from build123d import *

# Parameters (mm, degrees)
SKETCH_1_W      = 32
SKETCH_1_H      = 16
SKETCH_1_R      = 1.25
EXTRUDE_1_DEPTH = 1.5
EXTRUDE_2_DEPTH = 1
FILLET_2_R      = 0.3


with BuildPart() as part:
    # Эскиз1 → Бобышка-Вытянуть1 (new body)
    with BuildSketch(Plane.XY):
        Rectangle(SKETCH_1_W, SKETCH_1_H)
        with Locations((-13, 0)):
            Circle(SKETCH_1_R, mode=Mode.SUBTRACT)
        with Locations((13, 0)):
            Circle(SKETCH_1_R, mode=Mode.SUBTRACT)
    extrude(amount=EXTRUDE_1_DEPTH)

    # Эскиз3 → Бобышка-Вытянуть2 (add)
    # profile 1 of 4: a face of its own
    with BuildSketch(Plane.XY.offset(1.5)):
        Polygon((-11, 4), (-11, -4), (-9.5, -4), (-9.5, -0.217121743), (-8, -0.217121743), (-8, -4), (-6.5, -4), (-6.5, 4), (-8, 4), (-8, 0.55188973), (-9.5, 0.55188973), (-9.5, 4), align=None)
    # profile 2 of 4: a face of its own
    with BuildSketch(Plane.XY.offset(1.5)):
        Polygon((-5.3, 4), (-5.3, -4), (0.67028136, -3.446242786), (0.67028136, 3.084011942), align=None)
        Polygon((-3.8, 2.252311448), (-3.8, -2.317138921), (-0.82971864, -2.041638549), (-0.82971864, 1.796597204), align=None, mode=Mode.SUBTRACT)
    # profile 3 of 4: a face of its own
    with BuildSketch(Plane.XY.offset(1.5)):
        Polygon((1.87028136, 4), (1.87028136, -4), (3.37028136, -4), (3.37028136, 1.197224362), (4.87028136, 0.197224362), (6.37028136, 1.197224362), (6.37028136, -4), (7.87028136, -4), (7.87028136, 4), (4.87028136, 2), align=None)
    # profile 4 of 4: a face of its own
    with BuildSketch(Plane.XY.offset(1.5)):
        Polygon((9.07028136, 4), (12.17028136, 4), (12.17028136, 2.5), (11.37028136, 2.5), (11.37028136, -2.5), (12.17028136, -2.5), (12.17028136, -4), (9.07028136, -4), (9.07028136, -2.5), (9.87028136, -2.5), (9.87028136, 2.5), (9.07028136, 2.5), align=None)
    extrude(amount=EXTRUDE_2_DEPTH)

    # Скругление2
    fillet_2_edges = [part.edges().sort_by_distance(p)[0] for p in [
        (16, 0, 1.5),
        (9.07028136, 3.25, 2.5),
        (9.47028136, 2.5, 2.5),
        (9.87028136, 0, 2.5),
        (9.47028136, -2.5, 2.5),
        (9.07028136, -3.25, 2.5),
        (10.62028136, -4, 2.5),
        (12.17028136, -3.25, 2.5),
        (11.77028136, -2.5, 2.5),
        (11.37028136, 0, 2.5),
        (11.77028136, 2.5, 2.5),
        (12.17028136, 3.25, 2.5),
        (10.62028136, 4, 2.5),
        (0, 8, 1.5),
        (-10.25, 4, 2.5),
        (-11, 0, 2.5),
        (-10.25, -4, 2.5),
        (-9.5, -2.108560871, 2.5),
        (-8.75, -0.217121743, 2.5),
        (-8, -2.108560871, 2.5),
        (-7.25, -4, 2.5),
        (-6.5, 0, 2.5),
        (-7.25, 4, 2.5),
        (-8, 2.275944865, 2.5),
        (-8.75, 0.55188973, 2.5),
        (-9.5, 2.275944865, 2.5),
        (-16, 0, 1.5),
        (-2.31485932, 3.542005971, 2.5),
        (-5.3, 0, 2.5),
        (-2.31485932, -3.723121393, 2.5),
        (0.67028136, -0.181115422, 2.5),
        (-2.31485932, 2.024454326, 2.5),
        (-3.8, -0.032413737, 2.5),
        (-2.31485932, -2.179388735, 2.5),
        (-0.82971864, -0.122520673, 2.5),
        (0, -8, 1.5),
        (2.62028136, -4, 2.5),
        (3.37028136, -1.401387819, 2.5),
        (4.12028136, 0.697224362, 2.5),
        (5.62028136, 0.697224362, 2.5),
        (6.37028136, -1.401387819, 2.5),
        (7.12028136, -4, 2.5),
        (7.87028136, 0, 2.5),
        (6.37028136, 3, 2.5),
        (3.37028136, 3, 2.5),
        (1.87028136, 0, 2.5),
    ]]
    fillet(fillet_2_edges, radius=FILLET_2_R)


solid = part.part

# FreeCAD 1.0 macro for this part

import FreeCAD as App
import Part
import Sketcher


def edges_at(feature, points):
    """Names of the edges that pass closest to the given points."""
    edges = feature.Shape.Edges
    near = lambda p: min(range(len(edges)), key=lambda i: edges[i].distToShape(Part.Vertex(*p))[0])
    return sorted({f"Edge{near(p) + 1}" for p in points})

doc = App.newDocument("Part")
body = doc.addObject("PartDesign::Body", "Body")

# Sketch on XY plane
sketch1 = body.newObject("Sketcher::SketchObject", "Sketch")
sketch1.AttachmentSupport = (doc.getObject("XY_Plane"), [""])
sketch1.MapMode = "FlatFace"
sketch1.addGeometry([
    Part.LineSegment(App.Vector(-16, 8, 0), App.Vector(-16, -8, 0)),  # 0
    Part.LineSegment(App.Vector(-16, -8, 0), App.Vector(16, -8, 0)),  # 1
    Part.LineSegment(App.Vector(16, -8, 0), App.Vector(16, 8, 0)),  # 2
    Part.LineSegment(App.Vector(16, 8, 0), App.Vector(-16, 8, 0)),  # 3
    Part.Circle(App.Vector(-13, 0, 0), App.Vector(0, 0, 1), 1.2),  # 4
    Part.Circle(App.Vector(13, 0, 0), App.Vector(0, 0, 1), 1.2),  # 5
], False)
sketch1.addConstraint([
    Sketcher.Constraint("Coincident", 0, 2, 1, 1),
    Sketcher.Constraint("Coincident", 1, 2, 2, 1),
    Sketcher.Constraint("Coincident", 2, 2, 3, 1),
    Sketcher.Constraint("Coincident", 3, 2, 0, 1),
    Sketcher.Constraint("Vertical", 0),
    Sketcher.Constraint("Horizontal", 1),
    Sketcher.Constraint("Vertical", 2),
    Sketcher.Constraint("Horizontal", 3),
    Sketcher.Constraint("Equal", 4, 5),
    Sketcher.Constraint("Symmetric", 4, 3, 5, 3, -1, 1),
    Sketcher.Constraint("Symmetric", 0, 2, 2, 2, -1, 1),
    Sketcher.Constraint("PointOnObject", 4, 3, -1),
    Sketcher.Constraint("Diameter", 4, 2.5),
    Sketcher.Constraint("DistanceX", 1, 1, 1, 2, 32.0),
    Sketcher.Constraint("DistanceY", 0, 2, 0, 1, 16.0),
    Sketcher.Constraint("DistanceX", 4, 3, -1, 1, 13.0),
])
pad1 = body.newObject("PartDesign::Pad", "Pad")
pad1.Profile = sketch1
pad1.Length = 1.5

# Sketch on XY plane
sketch2 = body.newObject("Sketcher::SketchObject", "Sketch001")
sketch2.AttachmentSupport = (doc.getObject("XY_Plane"), [""])
sketch2.MapMode = "FlatFace"
sketch2.AttachmentOffset = App.Placement(App.Vector(0, 0, 1.5), App.Rotation())
sketch2.addGeometry([
    Part.LineSegment(App.Vector(-11, 4, 0), App.Vector(-11, -4, 0)),  # 0
    Part.LineSegment(App.Vector(-11, -4, 0), App.Vector(-9.5, -4, 0)),  # 1
    Part.LineSegment(App.Vector(-9.5, -4, 0), App.Vector(-9.5, -0.2, 0)),  # 2
    Part.LineSegment(App.Vector(-9.5, -0.2, 0), App.Vector(-8, -0.2, 0)),  # 3
    Part.LineSegment(App.Vector(-8, -0.2, 0), App.Vector(-8, -4, 0)),  # 4
    Part.LineSegment(App.Vector(-8, -4, 0), App.Vector(-6.5, -4, 0)),  # 5
    Part.LineSegment(App.Vector(-6.5, -4, 0), App.Vector(-6.5, 4, 0)),  # 6
    Part.LineSegment(App.Vector(-6.5, 4, 0), App.Vector(-8, 4, 0)),  # 7
    Part.LineSegment(App.Vector(-8, 4, 0), App.Vector(-8, 0.6, 0)),  # 8
    Part.LineSegment(App.Vector(-8, 0.6, 0), App.Vector(-9.5, 0.6, 0)),  # 9
    Part.LineSegment(App.Vector(-9.5, 0.6, 0), App.Vector(-9.5, 4, 0)),  # 10
    Part.LineSegment(App.Vector(-9.5, 4, 0), App.Vector(-11, 4, 0)),  # 11
    Part.LineSegment(App.Vector(-5.3, 4, 0), App.Vector(-5.3, -4, 0)),  # 12
    Part.LineSegment(App.Vector(-5.3, -4, 0), App.Vector(0.7, -3.4, 0)),  # 13
    Part.LineSegment(App.Vector(0.7, -3.4, 0), App.Vector(0.7, 3.1, 0)),  # 14
    Part.LineSegment(App.Vector(0.7, 3.1, 0), App.Vector(-5.3, 4, 0)),  # 15
    Part.LineSegment(App.Vector(-3.8, -2.3, 0), App.Vector(-3.8, 2.3, 0)),  # 16
    Part.LineSegment(App.Vector(-3.8, 2.3, 0), App.Vector(-0.8, 1.8, 0)),  # 17
    Part.LineSegment(App.Vector(-0.8, 1.8, 0), App.Vector(-0.8, -2, 0)),  # 18
    Part.LineSegment(App.Vector(-0.8, -2, 0), App.Vector(-3.8, -2.3, 0)),  # 19
    Part.LineSegment(App.Vector(1.9, 4, 0), App.Vector(1.9, -4, 0)),  # 20
    Part.LineSegment(App.Vector(1.9, -4, 0), App.Vector(3.4, -4, 0)),  # 21
    Part.LineSegment(App.Vector(3.4, -4, 0), App.Vector(3.4, 1.2, 0)),  # 22
    Part.LineSegment(App.Vector(3.4, 1.2, 0), App.Vector(4.9, 0.2, 0)),  # 23
    Part.LineSegment(App.Vector(4.9, 0.2, 0), App.Vector(6.4, 1.2, 0)),  # 24
    Part.LineSegment(App.Vector(6.4, 1.2, 0), App.Vector(6.4, -4, 0)),  # 25
    Part.LineSegment(App.Vector(6.4, -4, 0), App.Vector(7.9, -4, 0)),  # 26
    Part.LineSegment(App.Vector(7.9, -4, 0), App.Vector(7.9, 4, 0)),  # 27
    Part.LineSegment(App.Vector(7.9, 4, 0), App.Vector(4.9, 2, 0)),  # 28
    Part.LineSegment(App.Vector(4.9, 2, 0), App.Vector(1.9, 4, 0)),  # 29
    Part.LineSegment(App.Vector(12.2, 4, 0), App.Vector(9.1, 4, 0)),  # 30
    Part.LineSegment(App.Vector(9.1, 4, 0), App.Vector(9.1, 2.5, 0)),  # 31
    Part.LineSegment(App.Vector(9.1, 2.5, 0), App.Vector(9.9, 2.5, 0)),  # 32
    Part.LineSegment(App.Vector(9.9, 2.5, 0), App.Vector(9.9, -2.5, 0)),  # 33
    Part.LineSegment(App.Vector(9.9, -2.5, 0), App.Vector(9.1, -2.5, 0)),  # 34
    Part.LineSegment(App.Vector(9.1, -2.5, 0), App.Vector(9.1, -4, 0)),  # 35
    Part.LineSegment(App.Vector(9.1, -4, 0), App.Vector(12.2, -4, 0)),  # 36
    Part.LineSegment(App.Vector(12.2, -4, 0), App.Vector(12.2, -2.5, 0)),  # 37
    Part.LineSegment(App.Vector(12.2, -2.5, 0), App.Vector(11.4, -2.5, 0)),  # 38
    Part.LineSegment(App.Vector(11.4, -2.5, 0), App.Vector(11.4, 2.5, 0)),  # 39
    Part.LineSegment(App.Vector(11.4, 2.5, 0), App.Vector(12.2, 2.5, 0)),  # 40
    Part.LineSegment(App.Vector(12.2, 2.5, 0), App.Vector(12.2, 4, 0)),  # 41
], False)
sketch2.addConstraint([
    Sketcher.Constraint("Coincident", 0, 2, 1, 1),
    Sketcher.Constraint("Coincident", 1, 2, 2, 1),
    Sketcher.Constraint("Coincident", 2, 2, 3, 1),
    Sketcher.Constraint("Coincident", 3, 2, 4, 1),
    Sketcher.Constraint("Coincident", 4, 2, 5, 1),
    Sketcher.Constraint("Coincident", 5, 2, 6, 1),
    Sketcher.Constraint("Coincident", 6, 2, 7, 1),
    Sketcher.Constraint("Coincident", 7, 2, 8, 1),
    Sketcher.Constraint("Coincident", 8, 2, 9, 1),
    Sketcher.Constraint("Coincident", 9, 2, 10, 1),
    Sketcher.Constraint("Coincident", 10, 2, 11, 1),
    Sketcher.Constraint("Coincident", 11, 2, 0, 1),
    Sketcher.Constraint("Coincident", 12, 2, 13, 1),
    Sketcher.Constraint("Coincident", 13, 2, 14, 1),
    Sketcher.Constraint("Coincident", 14, 2, 15, 1),
    Sketcher.Constraint("Coincident", 15, 2, 12, 1),
    Sketcher.Constraint("Coincident", 16, 2, 17, 1),
    Sketcher.Constraint("Coincident", 17, 2, 18, 1),
    Sketcher.Constraint("Coincident", 18, 2, 19, 1),
    Sketcher.Constraint("Coincident", 19, 2, 16, 1),
    Sketcher.Constraint("Coincident", 20, 2, 21, 1),
    Sketcher.Constraint("Coincident", 21, 2, 22, 1),
    Sketcher.Constraint("Coincident", 22, 2, 23, 1),
    Sketcher.Constraint("Coincident", 23, 2, 24, 1),
    Sketcher.Constraint("Coincident", 24, 2, 25, 1),
    Sketcher.Constraint("Coincident", 25, 2, 26, 1),
    Sketcher.Constraint("Coincident", 26, 2, 27, 1),
    Sketcher.Constraint("Coincident", 27, 2, 28, 1),
    Sketcher.Constraint("Coincident", 28, 2, 29, 1),
    Sketcher.Constraint("Coincident", 29, 2, 20, 1),
    Sketcher.Constraint("Coincident", 30, 2, 31, 1),
    Sketcher.Constraint("Coincident", 31, 2, 32, 1),
    Sketcher.Constraint("Coincident", 32, 2, 33, 1),
    Sketcher.Constraint("Coincident", 33, 2, 34, 1),
    Sketcher.Constraint("Coincident", 34, 2, 35, 1),
    Sketcher.Constraint("Coincident", 35, 2, 36, 1),
    Sketcher.Constraint("Coincident", 36, 2, 37, 1),
    Sketcher.Constraint("Coincident", 37, 2, 38, 1),
    Sketcher.Constraint("Coincident", 38, 2, 39, 1),
    Sketcher.Constraint("Coincident", 39, 2, 40, 1),
    Sketcher.Constraint("Coincident", 40, 2, 41, 1),
    Sketcher.Constraint("Coincident", 41, 2, 30, 1),
    Sketcher.Constraint("Vertical", 0),
    Sketcher.Constraint("Horizontal", 1),
    Sketcher.Constraint("Vertical", 2),
    Sketcher.Constraint("Horizontal", 3),
    Sketcher.Constraint("Vertical", 4),
    Sketcher.Constraint("Horizontal", 5),
    Sketcher.Constraint("Vertical", 6),
    Sketcher.Constraint("Horizontal", 7),
    Sketcher.Constraint("Vertical", 8),
    Sketcher.Constraint("Horizontal", 9),
    Sketcher.Constraint("Vertical", 10),
    Sketcher.Constraint("Horizontal", 11),
    Sketcher.Constraint("Vertical", 12),
    Sketcher.Constraint("Vertical", 14),
    Sketcher.Constraint("Vertical", 16),
    Sketcher.Constraint("Vertical", 18),
    Sketcher.Constraint("Vertical", 20),
    Sketcher.Constraint("Horizontal", 21),
    Sketcher.Constraint("Vertical", 22),
    Sketcher.Constraint("Vertical", 25),
    Sketcher.Constraint("Horizontal", 26),
    Sketcher.Constraint("Vertical", 27),
    Sketcher.Constraint("Horizontal", 30),
    Sketcher.Constraint("Vertical", 31),
    Sketcher.Constraint("Horizontal", 32),
    Sketcher.Constraint("Vertical", 33),
    Sketcher.Constraint("Horizontal", 34),
    Sketcher.Constraint("Vertical", 35),
    Sketcher.Constraint("Horizontal", 36),
    Sketcher.Constraint("Vertical", 37),
    Sketcher.Constraint("Horizontal", 38),
    Sketcher.Constraint("Vertical", 39),
    Sketcher.Constraint("Horizontal", 40),
    Sketcher.Constraint("Vertical", 41),
    Sketcher.Constraint("Symmetric", 4, 2, 7, 2, -1),
    Sketcher.Constraint("Symmetric", 1, 2, 10, 2, -1),
    Sketcher.Constraint("Symmetric", 31, 2, 34, 2, -1),
    Sketcher.Constraint("Symmetric", 37, 2, 40, 2, -1),
    Sketcher.Constraint("Parallel", 15, 17),
    Sketcher.Constraint("Parallel", 13, 19),
    Sketcher.Constraint("Parallel", 24, 28),
    Sketcher.Constraint("Parallel", 23, 29),
    Sketcher.Constraint("Horizontal", 1, 2, 4, 2),
    Sketcher.Constraint("Horizontal", 5, 2, 12, 2),
    Sketcher.Constraint("Horizontal", 11, 2, 15, 2),
    Sketcher.Constraint("Horizontal", 12, 2, 20, 2),
    Sketcher.Constraint("Horizontal", 22, 2, 24, 2),
    Sketcher.Constraint("Horizontal", 21, 2, 25, 2),
    Sketcher.Constraint("Horizontal", 15, 2, 27, 2),
    Sketcher.Constraint("Horizontal", 27, 2, 29, 2),
    Sketcher.Constraint("Horizontal", 29, 2, 30, 2),
    Sketcher.Constraint("Horizontal", 26, 2, 35, 2),
    Sketcher.Constraint("Horizontal", 34, 2, 37, 2),
    Sketcher.Constraint("Vertical", 23, 2, 28, 2),
    Sketcher.Constraint("Equal", 1, 3),
    Sketcher.Constraint("Equal", 3, 5),
    Sketcher.Constraint("Equal", 11, 21),
    Sketcher.Constraint("Equal", 21, 26),
    Sketcher.Constraint("Equal", 34, 38),
    Sketcher.Constraint("Equal", 26, 31),
    Sketcher.Constraint("DistanceY", 0, 2, 0, 1, 8.0),
    Sketcher.Constraint("DistanceY", 33, 2, 33, 1, 5.0),
    Sketcher.Constraint("DistanceX", 30, 2, 30, 1, 3.1),
    Sketcher.Constraint("DistanceX", 32, 1, 32, 2, 0.8),
    Sketcher.Constraint("DistanceX", 0, 2, -1, 1, 11.0),
    Sketcher.Constraint("DistanceY", -1, 1, 28, 2, 2.0),
    Sketcher.Constraint("DistanceY", 23, 2, 22, 2, 1.0),
    Sketcher.Constraint("DistanceX", 27, 2, 32, 2, 2.0),
    Sketcher.Constraint("DistanceX", 12, 2, -1, 1, 5.3),
    Sketcher.Constraint("DistanceX", 16, 2, -1, 1, 3.8),
    Sketcher.Constraint("DistanceX", 17, 2, 14, 2, 1.5),
    Sketcher.Constraint("DistanceX", 13, 2, 20, 2, 1.2),
    Sketcher.Constraint("DistanceY", 2, 1, 2, 2, 3.782878),
    Sketcher.Constraint("DistanceY", 8, 2, 8, 1, 3.44811),
    Sketcher.Constraint("DistanceY", 16, 1, 16, 2, 4.56945),
    Sketcher.Constraint("DistanceY", 16, 2, 14, 2, 0.8317),
    Sketcher.Constraint("DistanceY", 19, 2, 18, 2, 0.2755),
    Sketcher.Constraint("Distance", 15, 6.04014),
    Sketcher.Constraint("Distance", 19, 2.983031),
    Sketcher.Constraint("DistanceY", 22, 1, 22, 2, 5.197224),
])
pad2 = body.newObject("PartDesign::Pad", "Pad001")
pad2.Profile = sketch2
pad2.Length = 1
doc.recompute()

fillet = body.newObject("PartDesign::Fillet", "Fillet")
fillet.Base = (pad2, edges_at(pad2, [
    (16, 0, 1.5),
    (9.07, 3.25, 2.5),
    (9.47, 2.5, 2.5),
    (9.87, 0, 2.5),
    (9.47, -2.5, 2.5),
    (9.07, -3.25, 2.5),
    (10.62, -4, 2.5),
    (12.17, -3.25, 2.5),
    (11.77, -2.5, 2.5),
    (11.37, 0, 2.5),
    (11.77, 2.5, 2.5),
    (12.17, 3.25, 2.5),
    (10.62, 4, 2.5),
    (0, 8, 1.5),
    (-10.25, 4, 2.5),
    (-11, 0, 2.5),
    (-10.25, -4, 2.5),
    (-9.5, -2.109, 2.5),
    (-8.75, -0.217, 2.5),
    (-8, -2.109, 2.5),
    (-7.25, -4, 2.5),
    (-6.5, 0, 2.5),
    (-7.25, 4, 2.5),
    (-8, 2.276, 2.5),
    (-8.75, 0.552, 2.5),
    (-9.5, 2.276, 2.5),
    (-16, 0, 1.5),
    (-2.315, 3.542, 2.5),
    (-5.3, 0, 2.5),
    (-2.315, -3.723, 2.5),
    (0.67, -0.181, 2.5),
    (-2.315, 2.024, 2.5),
    (-3.8, -0.032, 2.5),
    (-2.315, -2.179, 2.5),
    (-0.83, -0.123, 2.5),
    (0, -8, 1.5),
    (2.62, -4, 2.5),
    (3.37, -1.401, 2.5),
    (4.12, 0.697, 2.5),
    (5.62, 0.697, 2.5),
    (6.37, -1.401, 2.5),
    (7.12, -4, 2.5),
    (7.87, 0, 2.5),
    (6.37, 3, 2.5),
    (3.37, 3, 2.5),
    (1.87, 0, 2.5),
]))
fillet.Radius = 0.3

doc.recompute()
